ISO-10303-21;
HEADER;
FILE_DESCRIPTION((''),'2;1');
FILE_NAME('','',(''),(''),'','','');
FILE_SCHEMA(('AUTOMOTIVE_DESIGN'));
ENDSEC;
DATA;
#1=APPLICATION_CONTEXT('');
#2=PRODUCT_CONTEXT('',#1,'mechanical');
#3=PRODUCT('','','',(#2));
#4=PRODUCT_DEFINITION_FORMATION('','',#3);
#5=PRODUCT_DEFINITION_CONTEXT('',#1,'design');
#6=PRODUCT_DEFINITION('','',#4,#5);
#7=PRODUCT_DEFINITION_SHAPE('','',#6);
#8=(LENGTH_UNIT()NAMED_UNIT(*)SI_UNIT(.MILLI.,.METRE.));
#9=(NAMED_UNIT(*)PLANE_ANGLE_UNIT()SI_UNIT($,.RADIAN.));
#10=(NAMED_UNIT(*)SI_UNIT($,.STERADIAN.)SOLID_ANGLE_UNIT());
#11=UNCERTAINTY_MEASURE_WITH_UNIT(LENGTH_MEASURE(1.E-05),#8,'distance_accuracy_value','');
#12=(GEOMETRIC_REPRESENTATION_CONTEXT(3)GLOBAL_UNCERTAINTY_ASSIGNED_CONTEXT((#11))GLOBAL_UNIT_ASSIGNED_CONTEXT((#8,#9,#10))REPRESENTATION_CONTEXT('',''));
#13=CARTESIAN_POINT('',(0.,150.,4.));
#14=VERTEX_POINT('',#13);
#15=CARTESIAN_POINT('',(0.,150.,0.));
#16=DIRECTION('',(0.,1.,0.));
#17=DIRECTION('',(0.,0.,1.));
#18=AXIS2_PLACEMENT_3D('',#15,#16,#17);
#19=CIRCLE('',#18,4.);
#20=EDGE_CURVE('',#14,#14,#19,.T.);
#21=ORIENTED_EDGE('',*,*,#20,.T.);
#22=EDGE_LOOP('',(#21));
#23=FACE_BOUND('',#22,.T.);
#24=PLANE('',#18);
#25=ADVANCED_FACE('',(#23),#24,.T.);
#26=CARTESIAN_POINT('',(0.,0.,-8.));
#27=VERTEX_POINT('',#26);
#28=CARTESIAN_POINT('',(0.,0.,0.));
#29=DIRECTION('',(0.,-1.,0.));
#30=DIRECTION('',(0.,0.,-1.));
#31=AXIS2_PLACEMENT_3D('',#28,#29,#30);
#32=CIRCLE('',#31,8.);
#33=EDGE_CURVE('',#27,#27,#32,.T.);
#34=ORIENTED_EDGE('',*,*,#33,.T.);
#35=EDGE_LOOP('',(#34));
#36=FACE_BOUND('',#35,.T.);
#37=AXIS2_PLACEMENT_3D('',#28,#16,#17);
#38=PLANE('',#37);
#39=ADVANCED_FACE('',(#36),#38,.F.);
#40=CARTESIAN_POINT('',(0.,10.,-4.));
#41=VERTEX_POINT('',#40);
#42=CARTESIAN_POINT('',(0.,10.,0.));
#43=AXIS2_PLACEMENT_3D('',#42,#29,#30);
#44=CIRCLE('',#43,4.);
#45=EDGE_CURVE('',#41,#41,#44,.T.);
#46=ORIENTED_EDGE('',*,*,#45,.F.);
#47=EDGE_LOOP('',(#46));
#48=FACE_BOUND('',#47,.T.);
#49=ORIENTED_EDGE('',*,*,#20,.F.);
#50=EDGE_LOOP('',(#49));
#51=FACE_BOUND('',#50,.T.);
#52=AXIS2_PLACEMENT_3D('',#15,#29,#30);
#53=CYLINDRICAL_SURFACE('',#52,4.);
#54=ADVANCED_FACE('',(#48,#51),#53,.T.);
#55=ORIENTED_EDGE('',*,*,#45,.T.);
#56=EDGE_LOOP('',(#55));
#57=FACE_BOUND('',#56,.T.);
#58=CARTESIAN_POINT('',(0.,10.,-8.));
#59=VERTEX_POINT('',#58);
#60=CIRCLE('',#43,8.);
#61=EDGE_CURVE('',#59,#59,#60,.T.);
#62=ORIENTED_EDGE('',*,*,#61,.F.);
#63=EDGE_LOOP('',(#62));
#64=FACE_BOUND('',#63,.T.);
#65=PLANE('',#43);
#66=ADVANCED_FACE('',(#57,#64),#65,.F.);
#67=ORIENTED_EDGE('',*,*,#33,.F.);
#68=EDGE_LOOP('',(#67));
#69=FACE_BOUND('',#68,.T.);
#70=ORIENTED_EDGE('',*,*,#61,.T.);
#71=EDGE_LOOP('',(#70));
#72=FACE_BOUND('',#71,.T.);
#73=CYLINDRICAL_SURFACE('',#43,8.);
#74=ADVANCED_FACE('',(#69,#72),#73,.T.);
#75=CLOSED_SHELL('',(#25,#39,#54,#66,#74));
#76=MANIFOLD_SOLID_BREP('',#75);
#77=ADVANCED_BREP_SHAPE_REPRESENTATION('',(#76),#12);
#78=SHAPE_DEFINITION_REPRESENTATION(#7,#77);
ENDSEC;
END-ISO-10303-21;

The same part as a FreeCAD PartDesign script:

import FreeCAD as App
import Part
import Sketcher
from FreeCAD import Vector
Q = App.Units.Quantity

doc = App.newDocument("Part")
body = doc.addObject("PartDesign::Body", "Body")

# Sketch on XZ plane
sketch1 = body.newObject("Sketcher::SketchObject", "Sketch")
sketch1.AttachmentSupport = (doc.getObject("XZ_Plane"), [""])
sketch1.MapMode = "FlatFace"
sketch1.addGeometry(Part.Circle(Vector(0, 0, 0), Vector(0, 0, 1), 4), False)
sketch1.addConstraint(Sketcher.Constraint("Coincident", 0, 3, -1, 1))
sketch1.addConstraint(Sketcher.Constraint("Diameter", 0, Q("8 mm")))
pad1 = body.newObject("PartDesign::Pad", "Pad")
pad1.Profile = sketch1
pad1.Length = 150
pad1.Reversed = True

# Sketch on XZ plane
sketch2 = body.newObject("Sketcher::SketchObject", "Sketch001")
sketch2.AttachmentSupport = (doc.getObject("XZ_Plane"), [""])
sketch2.MapMode = "FlatFace"
sketch2.addGeometry(Part.Circle(Vector(0, 0, 0), Vector(0, 0, 1), 8), False)
sketch2.addConstraint(Sketcher.Constraint("Coincident", 0, 3, -1, 1))
sketch2.addConstraint(Sketcher.Constraint("Diameter", 0, Q("16 mm")))
pad2 = body.newObject("PartDesign::Pad", "Pad001")
pad2.Profile = sketch2
pad2.Length = 10
pad2.Reversed = True

doc.recompute()
